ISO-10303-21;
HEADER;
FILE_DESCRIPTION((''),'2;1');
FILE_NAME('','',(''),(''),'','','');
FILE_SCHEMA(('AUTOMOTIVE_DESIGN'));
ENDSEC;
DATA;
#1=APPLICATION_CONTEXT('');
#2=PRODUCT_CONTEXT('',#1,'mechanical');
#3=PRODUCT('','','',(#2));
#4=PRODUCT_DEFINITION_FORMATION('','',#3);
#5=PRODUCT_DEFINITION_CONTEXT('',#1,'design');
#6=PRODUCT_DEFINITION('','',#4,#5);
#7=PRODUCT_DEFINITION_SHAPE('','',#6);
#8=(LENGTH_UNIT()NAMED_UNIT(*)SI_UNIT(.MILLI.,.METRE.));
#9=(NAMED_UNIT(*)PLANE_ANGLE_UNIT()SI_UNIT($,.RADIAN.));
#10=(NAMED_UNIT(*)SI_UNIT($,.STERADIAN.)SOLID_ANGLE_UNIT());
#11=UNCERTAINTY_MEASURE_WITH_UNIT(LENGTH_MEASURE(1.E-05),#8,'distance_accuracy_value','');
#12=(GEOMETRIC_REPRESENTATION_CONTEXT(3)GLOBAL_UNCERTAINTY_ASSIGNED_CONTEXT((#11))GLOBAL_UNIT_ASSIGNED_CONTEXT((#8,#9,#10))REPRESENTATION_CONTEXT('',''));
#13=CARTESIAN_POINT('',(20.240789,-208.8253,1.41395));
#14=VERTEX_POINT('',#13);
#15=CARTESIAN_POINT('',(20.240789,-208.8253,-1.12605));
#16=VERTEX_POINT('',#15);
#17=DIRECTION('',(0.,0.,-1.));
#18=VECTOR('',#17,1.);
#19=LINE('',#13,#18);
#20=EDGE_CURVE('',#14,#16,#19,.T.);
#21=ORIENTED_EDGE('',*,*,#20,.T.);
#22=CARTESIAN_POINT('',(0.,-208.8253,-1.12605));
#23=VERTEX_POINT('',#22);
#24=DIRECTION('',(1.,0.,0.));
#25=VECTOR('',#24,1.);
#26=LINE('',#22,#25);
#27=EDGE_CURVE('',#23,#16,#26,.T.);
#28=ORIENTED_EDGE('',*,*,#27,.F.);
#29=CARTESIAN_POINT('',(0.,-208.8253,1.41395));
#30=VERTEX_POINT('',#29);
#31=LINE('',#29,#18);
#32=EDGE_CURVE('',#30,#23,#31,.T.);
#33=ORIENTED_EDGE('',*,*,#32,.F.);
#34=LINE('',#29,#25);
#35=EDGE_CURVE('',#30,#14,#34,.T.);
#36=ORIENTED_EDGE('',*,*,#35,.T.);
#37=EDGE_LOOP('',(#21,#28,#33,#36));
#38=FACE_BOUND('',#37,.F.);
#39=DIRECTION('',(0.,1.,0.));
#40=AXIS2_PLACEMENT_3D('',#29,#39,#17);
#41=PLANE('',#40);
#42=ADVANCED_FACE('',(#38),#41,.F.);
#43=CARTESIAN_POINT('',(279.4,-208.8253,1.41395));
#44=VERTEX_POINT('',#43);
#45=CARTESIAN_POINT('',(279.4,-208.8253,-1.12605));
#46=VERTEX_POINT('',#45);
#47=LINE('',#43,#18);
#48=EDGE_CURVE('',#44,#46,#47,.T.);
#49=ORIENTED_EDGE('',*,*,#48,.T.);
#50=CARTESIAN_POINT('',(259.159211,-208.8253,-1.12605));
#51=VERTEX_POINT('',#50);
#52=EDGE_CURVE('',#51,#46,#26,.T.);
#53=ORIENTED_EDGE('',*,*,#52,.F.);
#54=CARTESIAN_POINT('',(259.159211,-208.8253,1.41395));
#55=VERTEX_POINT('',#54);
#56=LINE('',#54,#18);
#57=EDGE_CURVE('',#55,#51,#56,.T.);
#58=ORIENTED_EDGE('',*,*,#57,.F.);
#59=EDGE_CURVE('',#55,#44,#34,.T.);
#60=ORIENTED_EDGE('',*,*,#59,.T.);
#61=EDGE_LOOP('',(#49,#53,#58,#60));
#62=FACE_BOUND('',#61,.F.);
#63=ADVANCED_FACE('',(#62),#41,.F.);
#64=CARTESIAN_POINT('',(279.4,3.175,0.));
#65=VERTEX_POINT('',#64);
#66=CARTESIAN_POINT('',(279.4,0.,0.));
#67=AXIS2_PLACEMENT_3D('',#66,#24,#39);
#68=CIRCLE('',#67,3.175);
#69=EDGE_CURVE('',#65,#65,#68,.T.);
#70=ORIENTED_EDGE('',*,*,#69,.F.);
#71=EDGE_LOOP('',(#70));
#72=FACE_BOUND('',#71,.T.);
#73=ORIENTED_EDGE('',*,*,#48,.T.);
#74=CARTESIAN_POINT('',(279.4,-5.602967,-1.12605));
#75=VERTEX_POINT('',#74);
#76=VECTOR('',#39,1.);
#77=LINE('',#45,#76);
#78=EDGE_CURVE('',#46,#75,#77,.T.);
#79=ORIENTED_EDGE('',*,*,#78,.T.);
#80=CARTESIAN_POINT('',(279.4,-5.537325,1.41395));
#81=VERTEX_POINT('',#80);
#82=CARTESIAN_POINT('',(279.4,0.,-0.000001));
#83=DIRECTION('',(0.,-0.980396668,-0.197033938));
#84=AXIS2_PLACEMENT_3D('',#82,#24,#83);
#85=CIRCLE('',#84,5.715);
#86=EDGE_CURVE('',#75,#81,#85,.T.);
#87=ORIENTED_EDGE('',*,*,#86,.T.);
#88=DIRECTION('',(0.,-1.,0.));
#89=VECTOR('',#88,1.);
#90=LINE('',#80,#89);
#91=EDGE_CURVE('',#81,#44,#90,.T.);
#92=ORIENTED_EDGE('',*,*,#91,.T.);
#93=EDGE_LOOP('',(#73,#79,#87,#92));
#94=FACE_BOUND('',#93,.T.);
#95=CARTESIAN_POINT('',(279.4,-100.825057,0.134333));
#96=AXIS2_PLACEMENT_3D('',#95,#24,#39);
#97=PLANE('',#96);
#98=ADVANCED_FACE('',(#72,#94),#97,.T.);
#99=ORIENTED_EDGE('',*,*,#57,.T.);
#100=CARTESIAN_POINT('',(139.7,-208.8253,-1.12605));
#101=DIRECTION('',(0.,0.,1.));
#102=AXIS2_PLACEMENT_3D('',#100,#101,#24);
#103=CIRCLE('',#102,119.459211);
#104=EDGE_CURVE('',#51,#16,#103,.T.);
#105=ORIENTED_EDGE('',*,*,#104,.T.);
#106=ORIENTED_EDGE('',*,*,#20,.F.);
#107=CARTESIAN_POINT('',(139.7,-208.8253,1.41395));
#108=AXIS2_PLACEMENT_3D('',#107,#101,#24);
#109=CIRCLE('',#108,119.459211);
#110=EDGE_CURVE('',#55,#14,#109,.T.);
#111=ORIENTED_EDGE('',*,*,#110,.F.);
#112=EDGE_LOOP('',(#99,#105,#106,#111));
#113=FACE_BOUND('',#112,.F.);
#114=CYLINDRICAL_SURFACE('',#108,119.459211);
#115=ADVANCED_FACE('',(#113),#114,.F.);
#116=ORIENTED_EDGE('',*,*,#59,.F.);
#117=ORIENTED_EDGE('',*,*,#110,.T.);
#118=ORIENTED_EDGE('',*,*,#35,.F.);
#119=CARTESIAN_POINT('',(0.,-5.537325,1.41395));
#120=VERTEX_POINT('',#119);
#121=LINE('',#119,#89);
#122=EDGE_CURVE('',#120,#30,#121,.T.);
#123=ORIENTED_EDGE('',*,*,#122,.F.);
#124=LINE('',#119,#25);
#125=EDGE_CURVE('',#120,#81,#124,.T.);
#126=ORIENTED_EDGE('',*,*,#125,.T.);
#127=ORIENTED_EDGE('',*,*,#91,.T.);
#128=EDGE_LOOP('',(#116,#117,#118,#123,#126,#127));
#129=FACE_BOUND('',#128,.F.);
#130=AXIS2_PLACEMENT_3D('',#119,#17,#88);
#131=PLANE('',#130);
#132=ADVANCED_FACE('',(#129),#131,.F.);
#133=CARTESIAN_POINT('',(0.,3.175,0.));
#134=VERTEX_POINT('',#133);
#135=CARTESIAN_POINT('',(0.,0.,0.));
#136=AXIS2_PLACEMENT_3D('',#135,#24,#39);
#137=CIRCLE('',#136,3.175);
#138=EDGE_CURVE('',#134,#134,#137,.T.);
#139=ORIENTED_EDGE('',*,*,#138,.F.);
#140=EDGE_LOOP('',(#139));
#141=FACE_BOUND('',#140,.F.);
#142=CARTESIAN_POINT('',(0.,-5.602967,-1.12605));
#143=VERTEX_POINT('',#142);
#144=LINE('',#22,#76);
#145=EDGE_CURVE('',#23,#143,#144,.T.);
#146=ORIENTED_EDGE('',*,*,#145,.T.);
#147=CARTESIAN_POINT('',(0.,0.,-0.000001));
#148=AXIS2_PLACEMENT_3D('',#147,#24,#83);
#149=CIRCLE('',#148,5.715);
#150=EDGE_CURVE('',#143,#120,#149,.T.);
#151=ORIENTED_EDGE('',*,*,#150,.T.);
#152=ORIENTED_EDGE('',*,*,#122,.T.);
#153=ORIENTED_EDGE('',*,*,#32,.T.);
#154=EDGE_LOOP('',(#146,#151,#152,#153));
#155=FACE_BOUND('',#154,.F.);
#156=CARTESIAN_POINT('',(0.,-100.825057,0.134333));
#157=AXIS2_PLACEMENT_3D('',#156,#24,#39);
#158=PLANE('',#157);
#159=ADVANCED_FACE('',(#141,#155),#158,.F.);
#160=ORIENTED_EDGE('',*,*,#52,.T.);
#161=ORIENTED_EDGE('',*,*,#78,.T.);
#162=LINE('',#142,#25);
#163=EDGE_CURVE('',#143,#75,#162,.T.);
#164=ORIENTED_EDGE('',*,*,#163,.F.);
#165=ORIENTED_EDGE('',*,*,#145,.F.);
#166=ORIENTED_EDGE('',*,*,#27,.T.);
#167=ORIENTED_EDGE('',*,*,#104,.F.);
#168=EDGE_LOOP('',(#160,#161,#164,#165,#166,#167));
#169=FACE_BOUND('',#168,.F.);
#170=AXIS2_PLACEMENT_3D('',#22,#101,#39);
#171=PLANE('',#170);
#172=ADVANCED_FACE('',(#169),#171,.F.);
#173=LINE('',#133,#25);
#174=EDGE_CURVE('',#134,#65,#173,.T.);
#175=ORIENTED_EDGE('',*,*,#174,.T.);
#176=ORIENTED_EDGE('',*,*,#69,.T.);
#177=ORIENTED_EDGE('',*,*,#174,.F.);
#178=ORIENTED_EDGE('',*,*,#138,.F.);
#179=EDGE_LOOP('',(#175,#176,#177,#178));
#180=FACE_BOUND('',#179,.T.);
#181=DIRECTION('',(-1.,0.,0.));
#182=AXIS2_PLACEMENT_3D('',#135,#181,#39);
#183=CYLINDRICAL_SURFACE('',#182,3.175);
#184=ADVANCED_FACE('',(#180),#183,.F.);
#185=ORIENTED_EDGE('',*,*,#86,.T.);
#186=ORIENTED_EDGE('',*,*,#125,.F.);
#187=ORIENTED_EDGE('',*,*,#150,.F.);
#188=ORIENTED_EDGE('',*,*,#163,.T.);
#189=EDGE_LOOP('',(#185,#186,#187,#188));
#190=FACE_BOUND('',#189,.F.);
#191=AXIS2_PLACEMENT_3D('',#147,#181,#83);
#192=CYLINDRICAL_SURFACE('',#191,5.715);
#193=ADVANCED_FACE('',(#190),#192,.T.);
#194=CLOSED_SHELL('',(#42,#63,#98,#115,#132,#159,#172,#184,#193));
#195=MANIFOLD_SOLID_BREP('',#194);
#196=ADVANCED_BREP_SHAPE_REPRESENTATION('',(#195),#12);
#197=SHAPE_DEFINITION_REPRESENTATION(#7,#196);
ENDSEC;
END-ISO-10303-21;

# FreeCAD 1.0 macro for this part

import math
import FreeCAD as App
import Part
import Sketcher
Q = App.Units.Quantity

doc = App.newDocument("Part")
body = doc.addObject("PartDesign::Body", "Body")

# Sketch on YZ plane
sketch1 = body.newObject("Sketcher::SketchObject", "Sketch")
sketch1.AttachmentSupport = (doc.getObject("YZ_Plane"), [""])
sketch1.MapMode = "FlatFace"
sketch1.addGeometry([
    Part.ArcOfCircle(Part.Circle(App.Vector(0, -0.000001, 0), App.Vector(0, 0, 1), 5.715), math.radians(-168.636435), math.radians(165.675669)),  # 0
    Part.LineSegment(App.Vector(-5.537325, 1.41395, 0), App.Vector(-208.8253, 1.41395, 0)),  # 1
    Part.LineSegment(App.Vector(-208.8253, 1.41395, 0), App.Vector(-208.8253, -1.12605, 0)),  # 2
    Part.LineSegment(App.Vector(-208.8253, -1.12605, 0), App.Vector(-5.602967, -1.12605, 0)),  # 3
    Part.Circle(App.Vector(0, 0, 0), App.Vector(0, 0, 1), 3.175),  # 4
], False)
sketch1.addConstraint([
    Sketcher.Constraint("Coincident", 0, 2, 1, 1),
    Sketcher.Constraint("Coincident", 1, 2, 2, 1),
    Sketcher.Constraint("Coincident", 2, 2, 3, 1),
    Sketcher.Constraint("Coincident", 3, 2, 0, 1),
    Sketcher.Constraint("Horizontal", 1),
    Sketcher.Constraint("Vertical", 2),
    Sketcher.Constraint("Horizontal", 3),
    Sketcher.Constraint("Coincident", 0, 3, -1, 1),
    Sketcher.Constraint("Coincident", 4, 3, -1, 1),
    Sketcher.Constraint("Diameter", 4, Q("0.25 in")),
    Sketcher.Constraint("DistanceY", 2, 2, 2, 1, Q("0.1 in")),
    Sketcher.Constraint("Radius", 0, Q("0.225 in")),
    Sketcher.Constraint("DistanceX", 1, 2, -1, 1, Q("208.8253 mm")),
    Sketcher.Constraint("DistanceX", 1, 2, 1, 1, Q("203.287975 mm")),
])
pad1 = body.newObject("PartDesign::Pad", "Pad")
pad1.Profile = sketch1
pad1.Length = Q("11 in")

# Sketch on XY plane
sketch2 = body.newObject("Sketcher::SketchObject", "Sketch001")
sketch2.AttachmentSupport = (doc.getObject("XY_Plane"), [""])
sketch2.MapMode = "FlatFace"
sketch2.AttachmentOffset = App.Placement(App.Vector(0, 0, 1.41395), App.Rotation())
sketch2.addGeometry([
    Part.LineSegment(App.Vector(20.240789, -208.8253, 0), App.Vector(259.159211, -208.8253, 0)),
    Part.ArcOfCircle(Part.Circle(App.Vector(139.7, -208.8253, 0), App.Vector(0, 0, 1), 119.459211), math.radians(0), math.radians(180)),
], False)
sketch2.addConstraint([
    Sketcher.Constraint("Coincident", 0, 1, 1, 2),
    Sketcher.Constraint("Coincident", 1, 1, 0, 2),
    Sketcher.Constraint("Horizontal", 0),
    Sketcher.Constraint("Horizontal", 1, 3, 0, 1),
    Sketcher.Constraint("DistanceX", -1, 1, 1, 3, Q("5.5 in")),
    Sketcher.Constraint("Radius", 1, Q("119.459211 mm")),
    Sketcher.Constraint("DistanceY", 1, 3, -1, 1, Q("208.8253 mm")),
])
pocket1 = body.newObject("PartDesign::Pocket", "Pocket")
pocket1.Profile = sketch2
pocket1.Length = Q("1 in")

doc.recompute()
